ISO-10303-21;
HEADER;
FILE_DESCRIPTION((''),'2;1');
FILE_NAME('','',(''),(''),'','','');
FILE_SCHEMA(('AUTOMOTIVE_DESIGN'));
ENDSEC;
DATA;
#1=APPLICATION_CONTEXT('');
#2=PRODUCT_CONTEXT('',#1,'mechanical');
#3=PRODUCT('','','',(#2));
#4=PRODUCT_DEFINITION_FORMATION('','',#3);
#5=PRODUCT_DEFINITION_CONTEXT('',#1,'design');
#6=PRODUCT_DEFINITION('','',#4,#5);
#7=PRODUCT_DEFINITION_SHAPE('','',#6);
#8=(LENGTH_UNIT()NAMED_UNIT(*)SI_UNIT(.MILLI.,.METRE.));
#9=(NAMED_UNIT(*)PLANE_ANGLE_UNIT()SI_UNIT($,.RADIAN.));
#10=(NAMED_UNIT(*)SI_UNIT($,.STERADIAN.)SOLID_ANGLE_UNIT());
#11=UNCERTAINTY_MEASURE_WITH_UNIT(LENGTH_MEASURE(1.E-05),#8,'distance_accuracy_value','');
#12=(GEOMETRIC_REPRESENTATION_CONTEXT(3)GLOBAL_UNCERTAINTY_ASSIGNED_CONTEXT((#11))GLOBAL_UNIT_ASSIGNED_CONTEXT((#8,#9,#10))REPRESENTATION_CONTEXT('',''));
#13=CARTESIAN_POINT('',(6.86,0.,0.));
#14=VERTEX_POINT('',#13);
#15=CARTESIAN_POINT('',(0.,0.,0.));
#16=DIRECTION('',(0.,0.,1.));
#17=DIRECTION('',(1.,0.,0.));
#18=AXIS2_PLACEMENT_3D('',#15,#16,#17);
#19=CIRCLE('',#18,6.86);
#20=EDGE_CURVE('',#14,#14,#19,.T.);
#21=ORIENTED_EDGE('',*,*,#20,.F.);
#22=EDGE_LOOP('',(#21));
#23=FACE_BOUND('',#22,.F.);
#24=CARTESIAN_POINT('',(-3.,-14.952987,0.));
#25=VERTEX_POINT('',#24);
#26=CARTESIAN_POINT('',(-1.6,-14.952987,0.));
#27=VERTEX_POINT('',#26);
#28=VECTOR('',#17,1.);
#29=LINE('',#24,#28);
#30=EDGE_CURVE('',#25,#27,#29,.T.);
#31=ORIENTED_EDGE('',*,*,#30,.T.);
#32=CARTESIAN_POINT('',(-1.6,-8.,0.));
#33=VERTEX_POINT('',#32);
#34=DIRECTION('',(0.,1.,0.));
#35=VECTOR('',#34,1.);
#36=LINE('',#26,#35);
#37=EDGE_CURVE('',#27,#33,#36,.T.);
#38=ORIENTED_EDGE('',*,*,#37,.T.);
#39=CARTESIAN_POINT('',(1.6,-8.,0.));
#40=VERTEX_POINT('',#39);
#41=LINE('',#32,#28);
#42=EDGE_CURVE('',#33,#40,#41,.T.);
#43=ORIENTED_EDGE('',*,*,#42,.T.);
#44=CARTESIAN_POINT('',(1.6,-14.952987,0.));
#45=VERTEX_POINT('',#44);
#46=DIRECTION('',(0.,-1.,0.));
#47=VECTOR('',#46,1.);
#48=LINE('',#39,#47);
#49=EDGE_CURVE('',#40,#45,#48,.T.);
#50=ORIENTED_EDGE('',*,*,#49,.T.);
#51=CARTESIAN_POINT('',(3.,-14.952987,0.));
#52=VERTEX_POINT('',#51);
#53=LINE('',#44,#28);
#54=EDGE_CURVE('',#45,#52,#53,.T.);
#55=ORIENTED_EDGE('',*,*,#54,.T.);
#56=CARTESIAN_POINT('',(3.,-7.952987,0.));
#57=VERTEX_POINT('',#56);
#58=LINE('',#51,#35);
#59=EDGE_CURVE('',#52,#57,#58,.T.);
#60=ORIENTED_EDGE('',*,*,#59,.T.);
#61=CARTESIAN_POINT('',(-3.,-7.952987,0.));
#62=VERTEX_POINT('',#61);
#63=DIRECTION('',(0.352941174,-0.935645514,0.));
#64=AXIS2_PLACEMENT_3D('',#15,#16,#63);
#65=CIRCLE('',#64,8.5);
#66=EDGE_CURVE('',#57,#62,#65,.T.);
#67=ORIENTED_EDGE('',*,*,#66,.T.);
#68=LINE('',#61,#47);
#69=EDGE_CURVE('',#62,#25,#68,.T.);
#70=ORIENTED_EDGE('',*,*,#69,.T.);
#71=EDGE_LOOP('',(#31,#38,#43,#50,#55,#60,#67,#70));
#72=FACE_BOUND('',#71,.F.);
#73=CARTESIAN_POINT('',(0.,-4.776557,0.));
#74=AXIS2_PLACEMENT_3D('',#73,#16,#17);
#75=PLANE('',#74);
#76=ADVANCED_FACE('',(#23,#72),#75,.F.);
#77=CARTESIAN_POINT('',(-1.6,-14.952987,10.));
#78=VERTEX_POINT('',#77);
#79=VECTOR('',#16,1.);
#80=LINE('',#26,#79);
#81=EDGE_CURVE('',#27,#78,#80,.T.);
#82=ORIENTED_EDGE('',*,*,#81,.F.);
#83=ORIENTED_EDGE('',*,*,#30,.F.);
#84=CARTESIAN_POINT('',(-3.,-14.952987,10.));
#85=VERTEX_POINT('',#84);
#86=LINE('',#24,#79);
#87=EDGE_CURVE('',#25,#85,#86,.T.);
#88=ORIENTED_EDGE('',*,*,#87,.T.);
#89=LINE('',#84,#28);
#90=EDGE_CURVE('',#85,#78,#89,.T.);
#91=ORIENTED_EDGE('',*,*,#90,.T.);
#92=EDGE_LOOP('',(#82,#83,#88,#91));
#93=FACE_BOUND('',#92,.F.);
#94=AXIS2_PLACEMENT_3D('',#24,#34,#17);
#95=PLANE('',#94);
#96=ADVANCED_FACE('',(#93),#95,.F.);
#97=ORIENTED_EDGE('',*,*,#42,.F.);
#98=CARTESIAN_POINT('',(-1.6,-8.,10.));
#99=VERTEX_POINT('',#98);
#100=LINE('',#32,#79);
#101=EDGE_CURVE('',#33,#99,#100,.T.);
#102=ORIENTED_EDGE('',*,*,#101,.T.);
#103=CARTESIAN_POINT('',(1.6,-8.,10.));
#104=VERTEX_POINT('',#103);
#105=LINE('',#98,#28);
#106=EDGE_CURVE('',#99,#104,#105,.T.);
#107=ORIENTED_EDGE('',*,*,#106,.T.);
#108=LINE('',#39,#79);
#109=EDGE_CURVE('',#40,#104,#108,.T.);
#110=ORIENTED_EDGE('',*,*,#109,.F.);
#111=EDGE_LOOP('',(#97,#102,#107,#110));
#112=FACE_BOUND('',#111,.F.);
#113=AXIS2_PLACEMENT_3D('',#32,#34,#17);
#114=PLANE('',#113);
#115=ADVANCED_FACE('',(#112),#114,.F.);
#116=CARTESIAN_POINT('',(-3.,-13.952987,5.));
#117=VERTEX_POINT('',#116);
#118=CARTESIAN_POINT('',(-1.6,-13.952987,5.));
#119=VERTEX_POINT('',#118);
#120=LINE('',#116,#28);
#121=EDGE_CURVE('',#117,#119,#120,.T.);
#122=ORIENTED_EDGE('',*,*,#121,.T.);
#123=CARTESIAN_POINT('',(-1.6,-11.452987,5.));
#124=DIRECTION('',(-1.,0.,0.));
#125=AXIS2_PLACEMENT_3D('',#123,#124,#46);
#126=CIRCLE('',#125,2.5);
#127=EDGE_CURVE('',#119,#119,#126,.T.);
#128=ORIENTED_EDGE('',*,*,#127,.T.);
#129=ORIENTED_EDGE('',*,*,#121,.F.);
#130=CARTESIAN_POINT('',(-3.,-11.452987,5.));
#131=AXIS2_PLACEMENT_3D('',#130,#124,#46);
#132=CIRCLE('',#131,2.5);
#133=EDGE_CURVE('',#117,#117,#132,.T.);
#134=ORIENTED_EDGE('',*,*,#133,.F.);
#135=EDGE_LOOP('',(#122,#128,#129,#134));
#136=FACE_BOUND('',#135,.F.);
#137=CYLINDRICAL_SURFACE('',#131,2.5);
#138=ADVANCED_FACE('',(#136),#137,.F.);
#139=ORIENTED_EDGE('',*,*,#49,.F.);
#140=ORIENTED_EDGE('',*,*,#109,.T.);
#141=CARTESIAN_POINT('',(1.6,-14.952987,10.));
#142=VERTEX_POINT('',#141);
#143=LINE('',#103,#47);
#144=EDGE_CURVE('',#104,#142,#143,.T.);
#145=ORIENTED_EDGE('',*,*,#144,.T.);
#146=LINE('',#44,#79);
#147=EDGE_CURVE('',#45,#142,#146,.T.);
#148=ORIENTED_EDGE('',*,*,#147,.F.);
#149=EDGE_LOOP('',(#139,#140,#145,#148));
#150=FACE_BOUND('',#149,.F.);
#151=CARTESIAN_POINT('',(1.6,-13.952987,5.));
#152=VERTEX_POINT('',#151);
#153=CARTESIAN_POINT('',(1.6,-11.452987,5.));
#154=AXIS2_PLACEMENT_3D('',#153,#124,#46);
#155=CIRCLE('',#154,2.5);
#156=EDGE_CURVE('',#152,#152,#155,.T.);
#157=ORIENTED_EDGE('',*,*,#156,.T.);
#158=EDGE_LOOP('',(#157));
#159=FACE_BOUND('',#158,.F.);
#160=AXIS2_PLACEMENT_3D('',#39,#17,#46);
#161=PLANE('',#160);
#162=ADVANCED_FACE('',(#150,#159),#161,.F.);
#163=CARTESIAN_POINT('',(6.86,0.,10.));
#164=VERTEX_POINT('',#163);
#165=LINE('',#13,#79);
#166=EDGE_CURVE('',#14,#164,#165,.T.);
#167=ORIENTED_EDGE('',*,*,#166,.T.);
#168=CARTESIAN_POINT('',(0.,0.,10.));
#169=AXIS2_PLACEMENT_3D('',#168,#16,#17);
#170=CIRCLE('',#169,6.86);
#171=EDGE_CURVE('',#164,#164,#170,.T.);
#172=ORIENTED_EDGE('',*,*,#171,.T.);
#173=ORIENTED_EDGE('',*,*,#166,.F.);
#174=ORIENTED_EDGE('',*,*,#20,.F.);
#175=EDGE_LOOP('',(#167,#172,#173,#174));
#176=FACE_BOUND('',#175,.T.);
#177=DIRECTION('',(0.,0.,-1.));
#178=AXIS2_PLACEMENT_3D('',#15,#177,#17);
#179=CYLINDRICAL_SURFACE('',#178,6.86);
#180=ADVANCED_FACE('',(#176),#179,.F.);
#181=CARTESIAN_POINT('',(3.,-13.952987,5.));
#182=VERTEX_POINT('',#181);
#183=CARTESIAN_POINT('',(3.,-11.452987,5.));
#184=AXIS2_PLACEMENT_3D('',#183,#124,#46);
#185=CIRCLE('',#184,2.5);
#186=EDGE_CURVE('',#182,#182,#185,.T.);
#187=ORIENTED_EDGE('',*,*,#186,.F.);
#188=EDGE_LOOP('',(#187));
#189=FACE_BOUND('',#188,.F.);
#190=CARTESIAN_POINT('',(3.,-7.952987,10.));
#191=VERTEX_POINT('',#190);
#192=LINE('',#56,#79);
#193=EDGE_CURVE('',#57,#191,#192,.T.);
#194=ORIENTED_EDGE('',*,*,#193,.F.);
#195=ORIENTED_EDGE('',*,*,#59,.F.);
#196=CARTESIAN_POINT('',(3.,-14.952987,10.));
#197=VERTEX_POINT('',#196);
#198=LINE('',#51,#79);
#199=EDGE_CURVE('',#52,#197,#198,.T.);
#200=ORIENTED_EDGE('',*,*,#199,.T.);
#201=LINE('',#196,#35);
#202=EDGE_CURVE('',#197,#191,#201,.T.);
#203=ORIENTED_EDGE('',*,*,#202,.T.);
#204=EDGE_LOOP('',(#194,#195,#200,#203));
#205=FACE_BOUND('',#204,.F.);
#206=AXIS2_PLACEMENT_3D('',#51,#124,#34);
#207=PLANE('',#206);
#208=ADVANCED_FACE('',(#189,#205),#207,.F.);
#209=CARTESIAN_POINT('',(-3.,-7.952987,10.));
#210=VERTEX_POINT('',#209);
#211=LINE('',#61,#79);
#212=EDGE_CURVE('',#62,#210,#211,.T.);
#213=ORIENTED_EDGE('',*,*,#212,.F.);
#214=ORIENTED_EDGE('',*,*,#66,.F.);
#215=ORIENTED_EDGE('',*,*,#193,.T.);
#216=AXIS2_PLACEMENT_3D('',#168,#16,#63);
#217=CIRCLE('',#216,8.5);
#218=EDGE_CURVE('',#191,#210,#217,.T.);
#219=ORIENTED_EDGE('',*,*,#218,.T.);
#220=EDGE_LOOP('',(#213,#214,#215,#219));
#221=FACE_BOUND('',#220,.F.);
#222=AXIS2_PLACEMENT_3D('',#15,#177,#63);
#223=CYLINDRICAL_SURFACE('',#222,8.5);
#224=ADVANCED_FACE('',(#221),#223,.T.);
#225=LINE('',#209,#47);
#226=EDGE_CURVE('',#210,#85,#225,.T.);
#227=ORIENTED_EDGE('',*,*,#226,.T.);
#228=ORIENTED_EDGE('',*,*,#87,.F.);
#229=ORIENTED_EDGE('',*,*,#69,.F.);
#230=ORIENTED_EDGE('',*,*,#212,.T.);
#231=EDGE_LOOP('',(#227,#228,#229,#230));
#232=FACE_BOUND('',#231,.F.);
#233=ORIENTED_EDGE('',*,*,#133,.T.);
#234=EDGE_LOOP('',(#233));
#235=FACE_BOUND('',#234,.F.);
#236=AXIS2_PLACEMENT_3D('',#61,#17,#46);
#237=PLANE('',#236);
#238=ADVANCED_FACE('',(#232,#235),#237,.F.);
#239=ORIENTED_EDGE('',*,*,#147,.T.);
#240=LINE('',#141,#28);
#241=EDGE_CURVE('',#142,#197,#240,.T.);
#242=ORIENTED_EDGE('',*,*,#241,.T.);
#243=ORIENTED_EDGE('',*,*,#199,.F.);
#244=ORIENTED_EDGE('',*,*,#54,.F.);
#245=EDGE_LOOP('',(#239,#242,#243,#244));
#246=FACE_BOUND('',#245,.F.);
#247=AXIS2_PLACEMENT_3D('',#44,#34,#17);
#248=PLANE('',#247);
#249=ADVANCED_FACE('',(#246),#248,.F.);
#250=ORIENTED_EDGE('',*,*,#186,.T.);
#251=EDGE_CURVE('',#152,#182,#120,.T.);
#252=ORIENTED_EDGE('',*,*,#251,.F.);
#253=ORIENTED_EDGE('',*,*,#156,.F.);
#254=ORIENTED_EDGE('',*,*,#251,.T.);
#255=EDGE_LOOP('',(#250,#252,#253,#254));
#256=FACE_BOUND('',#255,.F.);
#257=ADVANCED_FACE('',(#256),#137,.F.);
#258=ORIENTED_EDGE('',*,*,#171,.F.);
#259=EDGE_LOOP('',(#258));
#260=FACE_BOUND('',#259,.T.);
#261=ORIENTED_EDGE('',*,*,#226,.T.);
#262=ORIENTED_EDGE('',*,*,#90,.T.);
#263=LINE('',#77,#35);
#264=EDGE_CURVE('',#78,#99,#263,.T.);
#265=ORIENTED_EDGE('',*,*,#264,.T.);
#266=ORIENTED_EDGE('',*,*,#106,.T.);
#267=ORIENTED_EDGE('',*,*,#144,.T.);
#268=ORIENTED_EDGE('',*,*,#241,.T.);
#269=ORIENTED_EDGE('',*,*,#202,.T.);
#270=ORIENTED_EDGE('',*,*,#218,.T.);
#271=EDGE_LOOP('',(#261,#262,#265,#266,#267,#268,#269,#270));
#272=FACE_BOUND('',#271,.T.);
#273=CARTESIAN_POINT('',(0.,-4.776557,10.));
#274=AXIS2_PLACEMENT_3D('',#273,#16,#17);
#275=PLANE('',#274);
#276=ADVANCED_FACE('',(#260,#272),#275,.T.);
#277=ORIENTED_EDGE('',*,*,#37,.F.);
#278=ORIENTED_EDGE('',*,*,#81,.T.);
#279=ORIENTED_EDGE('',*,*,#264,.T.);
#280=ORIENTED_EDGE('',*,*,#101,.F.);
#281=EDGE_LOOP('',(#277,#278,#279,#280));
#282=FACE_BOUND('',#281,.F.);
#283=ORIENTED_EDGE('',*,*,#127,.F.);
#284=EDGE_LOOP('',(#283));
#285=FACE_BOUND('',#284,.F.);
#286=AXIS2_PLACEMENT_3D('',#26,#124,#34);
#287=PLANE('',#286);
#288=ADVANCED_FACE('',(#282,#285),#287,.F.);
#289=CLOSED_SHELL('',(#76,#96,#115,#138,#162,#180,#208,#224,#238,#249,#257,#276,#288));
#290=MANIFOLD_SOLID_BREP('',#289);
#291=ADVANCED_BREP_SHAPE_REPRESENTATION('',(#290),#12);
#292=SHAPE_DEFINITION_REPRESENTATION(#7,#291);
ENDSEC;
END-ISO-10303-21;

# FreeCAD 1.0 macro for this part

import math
import FreeCAD as App
import Part
import Sketcher

V = App.Vector
Q = App.Units.Quantity

doc = App.newDocument("Part")
params = doc.addObject("Spreadsheet::Sheet", "Params")
for row, (alias, value) in enumerate([
    ("sketch1_radius", "8.5 mm"),
    ("sketch1_diameter", "13.72 mm"),
    ("sketch1_height", "7 mm"),
    ("sketch1_width", "1.4 mm"),
    ("sketch1_width2", "3.2 mm"),
    ("pad1_length", "10 mm"),
    ("sketch2_diameter", "5 mm"),
], start=1):
    params.set(f"A{row}", alias)
    params.set(f"B{row}", "=" + value)
    params.setAlias(f"B{row}", alias)

body = doc.addObject("PartDesign::Body", "Body")

# Sketch on XY plane
sketch1 = body.newObject("Sketcher::SketchObject", "Sketch")
sketch1.AttachmentSupport = (doc.getObject("XY_Plane"), [""])
sketch1.MapMode = "FlatFace"
sketch1.addGeometry([
    Part.LineSegment(V(3, -14.952987, 0), V(3, -7.952987, 0)),  # 0
    Part.ArcOfCircle(Part.Circle(V(0, 0, 0), V(0, 0, 1), 8.5), math.radians(-69.332684), math.radians(249.332684)),  # 1
    Part.LineSegment(V(-3, -7.952987, 0), V(-3, -14.952987, 0)),  # 2
    Part.LineSegment(V(-3, -14.952987, 0), V(-1.6, -14.952987, 0)),  # 3
    Part.LineSegment(V(-1.6, -14.952987, 0), V(-1.6, -8, 0)),  # 4
    Part.LineSegment(V(-1.6, -8, 0), V(1.6, -8, 0)),  # 5
    Part.LineSegment(V(1.6, -8, 0), V(1.6, -14.952987, 0)),  # 6
    Part.LineSegment(V(1.6, -14.952987, 0), V(3, -14.952987, 0)),  # 7
    Part.Circle(V(0, 0, 0), V(0, 0, 1), 6.86),  # 8
], False)
sketch1.addConstraint([
    Sketcher.Constraint("Coincident", 0, 2, 1, 1),
    Sketcher.Constraint("Coincident", 1, 2, 2, 1),
    Sketcher.Constraint("Coincident", 2, 2, 3, 1),
    Sketcher.Constraint("Coincident", 3, 2, 4, 1),
    Sketcher.Constraint("Coincident", 4, 2, 5, 1),
    Sketcher.Constraint("Coincident", 5, 2, 6, 1),
    Sketcher.Constraint("Coincident", 6, 2, 7, 1),
    Sketcher.Constraint("Coincident", 7, 2, 0, 1),
    Sketcher.Constraint("Vertical", 0),
    Sketcher.Constraint("Vertical", 2),
    Sketcher.Constraint("Horizontal", 3),
    Sketcher.Constraint("Vertical", 4),
    Sketcher.Constraint("Horizontal", 5),
    Sketcher.Constraint("Vertical", 6),
    Sketcher.Constraint("Horizontal", 7),
    Sketcher.Constraint("Coincident", 1, 3, -1, 1),
    Sketcher.Constraint("Coincident", 8, 3, -1, 1),
    Sketcher.Constraint("Symmetric", 3, 2, 6, 2, -2),
    Sketcher.Constraint("Horizontal", 0, 2, 1, 2),
    Sketcher.Constraint("Radius", 1, Q("8.5 mm")),
    Sketcher.Constraint("Diameter", 8, Q("13.72 mm")),
    Sketcher.Constraint("DistanceY", 0, 1, 0, 2, Q("7 mm")),
    Sketcher.Constraint("DistanceX", 3, 1, 3, 2, Q("1.4 mm")),
    Sketcher.Constraint("DistanceX", 5, 1, 5, 2, Q("3.2 mm")),
    Sketcher.Constraint("DistanceY", 4, 2, -1, 1, Q("8 mm")),
])
sketch1.setExpression("Constraints[19]", "Params.sketch1_radius")
sketch1.setExpression("Constraints[20]", "Params.sketch1_diameter")
sketch1.setExpression("Constraints[21]", "Params.sketch1_height")
sketch1.setExpression("Constraints[22]", "Params.sketch1_width")
sketch1.setExpression("Constraints[23]", "Params.sketch1_width2")
pad1 = body.newObject("PartDesign::Pad", "Pad")
pad1.Profile = sketch1
pad1.setExpression("Length", "Params.pad1_length")

# Sketch on YZ plane
sketch2 = body.newObject("Sketcher::SketchObject", "Sketch001")
sketch2.AttachmentSupport = (doc.getObject("YZ_Plane"), [""])
sketch2.MapMode = "FlatFace"
sketch2.AttachmentOffset = App.Placement(V(0, 0, -3), App.Rotation())
sketch2.addGeometry(Part.Circle(V(-11.452987, 5, 0), V(0, 0, 1), 2.5), False)
sketch2.addConstraint([
    Sketcher.Constraint("Diameter", 0, Q("5 mm")),
    Sketcher.Constraint("DistanceY", -1, 1, 0, 3, Q("5 mm")),
    Sketcher.Constraint("DistanceX", 0, 3, -1, 1, Q("11.452987 mm")),
])
sketch2.setExpression("Constraints[0]", "Params.sketch2_diameter")
pocket1 = body.newObject("PartDesign::Pocket", "Pocket")
pocket1.Profile = sketch2
pocket1.Type = "ThroughAll"
pocket1.Reversed = True

doc.recompute()
